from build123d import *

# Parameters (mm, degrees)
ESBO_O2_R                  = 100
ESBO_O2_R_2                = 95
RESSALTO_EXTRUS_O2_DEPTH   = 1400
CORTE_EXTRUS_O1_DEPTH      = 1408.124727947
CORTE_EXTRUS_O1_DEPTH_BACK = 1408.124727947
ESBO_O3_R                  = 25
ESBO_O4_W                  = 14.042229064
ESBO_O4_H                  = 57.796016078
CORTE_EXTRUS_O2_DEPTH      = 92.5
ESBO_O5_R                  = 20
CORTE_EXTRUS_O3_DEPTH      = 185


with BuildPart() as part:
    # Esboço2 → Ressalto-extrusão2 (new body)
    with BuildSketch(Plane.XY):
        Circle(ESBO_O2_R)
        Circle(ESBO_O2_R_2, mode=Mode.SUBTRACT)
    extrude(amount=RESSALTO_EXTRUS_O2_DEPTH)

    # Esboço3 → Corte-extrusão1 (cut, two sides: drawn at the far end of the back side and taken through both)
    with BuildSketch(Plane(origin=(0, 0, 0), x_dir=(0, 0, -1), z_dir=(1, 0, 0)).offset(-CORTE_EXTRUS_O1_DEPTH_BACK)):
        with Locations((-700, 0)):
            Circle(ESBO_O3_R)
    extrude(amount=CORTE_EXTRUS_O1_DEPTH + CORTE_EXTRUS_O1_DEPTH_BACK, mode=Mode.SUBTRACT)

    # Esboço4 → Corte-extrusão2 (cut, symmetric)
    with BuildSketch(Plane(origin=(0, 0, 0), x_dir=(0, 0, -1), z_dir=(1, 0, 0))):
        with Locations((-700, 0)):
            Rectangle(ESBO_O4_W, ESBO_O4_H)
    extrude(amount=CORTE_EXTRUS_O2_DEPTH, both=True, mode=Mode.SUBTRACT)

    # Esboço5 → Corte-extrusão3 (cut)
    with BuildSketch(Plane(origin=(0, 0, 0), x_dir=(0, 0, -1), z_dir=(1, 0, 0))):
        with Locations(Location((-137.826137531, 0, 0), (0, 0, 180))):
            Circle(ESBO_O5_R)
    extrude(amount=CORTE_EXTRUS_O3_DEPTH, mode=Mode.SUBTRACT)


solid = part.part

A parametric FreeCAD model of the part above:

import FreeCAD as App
import Part
import Sketcher

doc = App.newDocument("Part")
body = doc.addObject("PartDesign::Body", "Body")

# Sketch on XY plane
sketch1 = doc.addObject("Sketcher::SketchObject", "Sketch")
body.addObject(sketch1)
sketch1.AttachmentSupport = (doc.XY_Plane, [""])
sketch1.MapMode = "FlatFace"
sketch1.addGeometry([
    Part.Circle(App.Vector(0, 0, 0), App.Vector(0, 0, 1), 100),
    Part.Circle(App.Vector(0, 0, 0), App.Vector(0, 0, 1), 95),
], False)
sketch1.addConstraint([
    Sketcher.Constraint("Coincident", 0, 3, -1, 1),
    Sketcher.Constraint("Coincident", 1, 3, -1, 1),
    Sketcher.Constraint("Diameter", 0, 200.0),
    Sketcher.Constraint("Diameter", 1, 190.0),
])
pad1 = doc.addObject("PartDesign::Pad", "Pad")
body.addObject(pad1)
pad1.Profile = sketch1
pad1.Length = 1400

# Sketch on YZ plane
sketch2 = doc.addObject("Sketcher::SketchObject", "Sketch001")
body.addObject(sketch2)
sketch2.AttachmentSupport = (doc.YZ_Plane, [""])
sketch2.MapMode = "FlatFace"
sketch2.addGeometry(Part.Circle(App.Vector(0, 700, 0), App.Vector(0, 0, 1), 25), False)
sketch2.addConstraint([
    Sketcher.Constraint("PointOnObject", 0, 3, -2),
    Sketcher.Constraint("Diameter", 0, 50.0),
    Sketcher.Constraint("DistanceY", -1, 1, 0, 3, 700.0),
])
pocket1 = doc.addObject("PartDesign::Pocket", "Pocket")
body.addObject(pocket1)
pocket1.Profile = sketch2
pocket1.Type = "ThroughAll"
pocket1.Midplane = True

# Sketch on YZ plane
sketch3 = doc.addObject("Sketcher::SketchObject", "Sketch002")
body.addObject(sketch3)
sketch3.AttachmentSupport = (doc.YZ_Plane, [""])
sketch3.MapMode = "FlatFace"
sketch3.addGeometry([
    Part.LineSegment(App.Vector(29, 707, 0), App.Vector(-29, 707, 0)),
    Part.LineSegment(App.Vector(-29, 707, 0), App.Vector(-29, 693, 0)),
    Part.LineSegment(App.Vector(-29, 693, 0), App.Vector(29, 693, 0)),
    Part.LineSegment(App.Vector(29, 693, 0), App.Vector(29, 707, 0)),
], False)
sketch3.addConstraint([
    Sketcher.Constraint("Coincident", 0, 2, 1, 1),
    Sketcher.Constraint("Coincident", 1, 2, 2, 1),
    Sketcher.Constraint("Coincident", 2, 2, 3, 1),
    Sketcher.Constraint("Coincident", 3, 2, 0, 1),
    Sketcher.Constraint("Horizontal", 0),
    Sketcher.Constraint("Vertical", 1),
    Sketcher.Constraint("Horizontal", 2),
    Sketcher.Constraint("Vertical", 3),
    Sketcher.Constraint("DistanceY", 1, 2, 1, 1, 14.042229),
    Sketcher.Constraint("DistanceX", 0, 2, 0, 1, 57.796016),
    Sketcher.Constraint("DistanceX", 0, 2, -1, 1, 28.898008),
    Sketcher.Constraint("DistanceY", -1, 1, 0, 2, 707.021115),
])
pocket2 = doc.addObject("PartDesign::Pocket", "Pocket001")
body.addObject(pocket2)
pocket2.Profile = sketch3
pocket2.Length = 185
pocket2.Midplane = True

# Sketch on YZ plane
sketch4 = doc.addObject("Sketcher::SketchObject", "Sketch003")
body.addObject(sketch4)
sketch4.AttachmentSupport = (doc.YZ_Plane, [""])
sketch4.MapMode = "FlatFace"
sketch4.addGeometry(Part.Circle(App.Vector(0, 138, 0), App.Vector(0, 0, 1), 20), False)
sketch4.addConstraint([
    Sketcher.Constraint("PointOnObject", 0, 3, -2),
    Sketcher.Constraint("Diameter", 0, 40.0),
    Sketcher.Constraint("DistanceY", -1, 1, 0, 3, 137.826138),
])
pocket3 = doc.addObject("PartDesign::Pocket", "Pocket002")
body.addObject(pocket3)
pocket3.Profile = sketch4
pocket3.Length = 185
pocket3.Reversed = True

doc.recompute()
